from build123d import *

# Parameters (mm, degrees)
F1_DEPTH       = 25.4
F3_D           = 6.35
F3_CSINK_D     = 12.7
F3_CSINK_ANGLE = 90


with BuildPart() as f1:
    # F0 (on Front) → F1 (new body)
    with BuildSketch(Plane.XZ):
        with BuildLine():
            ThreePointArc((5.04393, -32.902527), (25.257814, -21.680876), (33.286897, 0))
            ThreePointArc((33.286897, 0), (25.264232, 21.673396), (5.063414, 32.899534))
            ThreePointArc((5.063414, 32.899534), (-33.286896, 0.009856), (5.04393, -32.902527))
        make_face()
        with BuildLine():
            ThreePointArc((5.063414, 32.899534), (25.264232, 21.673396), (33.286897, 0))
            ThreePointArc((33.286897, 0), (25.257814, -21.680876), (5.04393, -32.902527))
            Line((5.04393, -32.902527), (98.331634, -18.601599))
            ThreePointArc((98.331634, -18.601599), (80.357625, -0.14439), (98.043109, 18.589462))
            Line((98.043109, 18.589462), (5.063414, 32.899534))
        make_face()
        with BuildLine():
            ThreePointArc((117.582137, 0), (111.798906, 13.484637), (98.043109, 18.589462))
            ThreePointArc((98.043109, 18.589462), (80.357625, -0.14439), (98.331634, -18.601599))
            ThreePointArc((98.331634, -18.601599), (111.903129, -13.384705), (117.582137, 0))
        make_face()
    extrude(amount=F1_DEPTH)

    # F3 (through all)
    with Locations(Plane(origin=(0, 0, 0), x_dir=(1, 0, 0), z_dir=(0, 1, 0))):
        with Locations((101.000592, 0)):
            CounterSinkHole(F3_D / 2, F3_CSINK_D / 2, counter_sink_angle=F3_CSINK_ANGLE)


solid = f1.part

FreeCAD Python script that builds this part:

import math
import FreeCAD as App
import Part
import Sketcher

V = App.Vector
Q = App.Units.Quantity

doc = App.newDocument("Part")
body = doc.addObject("PartDesign::Body", "Body")

# Sketch on XZ plane
sketch1 = doc.addObject("Sketcher::SketchObject", "Sketch")
body.addObject(sketch1)
sketch1.AttachmentSupport = (doc.XZ_Plane, [""])
sketch1.MapMode = "FlatFace"
sketch1.addGeometry([
    Part.ArcOfCircle(Part.Circle(V(0, 0, 0), V(0, 0, 1), 33), math.radians(81), math.radians(279)),  # 0
    Part.LineSegment(V(5, -33, 0), V(98, -19, 0)),  # 1
    Part.ArcOfCircle(Part.Circle(V(99, 0, 0), V(0, 0, 1), 19), math.radians(-92), math.radians(0)),  # 2
    Part.ArcOfCircle(Part.Circle(V(99, 0, 0), V(0, 0, 1), 19), math.radians(0), math.radians(93)),  # 3
    Part.LineSegment(V(98, 19, 0), V(5, 33, 0)),  # 4
], False)
sketch1.addConstraint([
    Sketcher.Constraint("Tangent", 0, 2, 1, 1),
    Sketcher.Constraint("Coincident", 1, 2, 2, 1),
    Sketcher.Constraint("Tangent", 2, 2, 3, 1),
    Sketcher.Constraint("Coincident", 3, 2, 4, 1),
    Sketcher.Constraint("Tangent", 4, 2, 0, 1),
    Sketcher.Constraint("Coincident", 0, 3, -1, 1),
    Sketcher.Constraint("Equal", 2, 3),
    Sketcher.Constraint("PointOnObject", 2, 3, -1),
    Sketcher.Constraint("PointOnObject", 2, 2, -1),
    Sketcher.Constraint("Radius", 0, Q("33.286897 mm")),
    Sketcher.Constraint("Radius", 2, Q("18.612537 mm")),
    Sketcher.Constraint("Distance", 1, Q("94.377499 mm")),
    Sketcher.Constraint("DistanceX", -1, 1, 2, 3, Q("98.9696 mm")),
    Sketcher.Constraint("Distance", 4, Q("94.074448 mm")),
])
pad1 = doc.addObject("PartDesign::Pad", "Pad")
body.addObject(pad1)
pad1.Profile = sketch1
pad1.Length = Q("1 in")

# Sketch on XZ plane
sketch2 = doc.addObject("Sketcher::SketchObject", "Sketch001")
body.addObject(sketch2)
sketch2.AttachmentSupport = (doc.XZ_Plane, [""])
sketch2.MapMode = "FlatFace"
sketch2.addGeometry(Part.Circle(V(101, 0, 0), V(0, 0, 1), 3.2), False)
sketch2.addConstraint([
    Sketcher.Constraint("PointOnObject", 0, 3, -1),
    Sketcher.Constraint("Diameter", 0, Q("0.25 in")),
    Sketcher.Constraint("DistanceX", -1, 1, 0, 3, Q("101.000592 mm")),
])
doc.recompute()
hole = doc.addObject("PartDesign::Hole", "Hole")
body.addObject(hole)
hole.Profile = sketch2
hole.ThreadType = "None"
hole.Diameter = Q("0.25 in")
hole.DepthType = "ThroughAll"
hole.HoleCutType = "Countersink"
hole.HoleCutDiameter = Q("0.5 in")
hole.HoleCutCountersinkAngle = 90
hole.Reversed = True

doc.recompute()
